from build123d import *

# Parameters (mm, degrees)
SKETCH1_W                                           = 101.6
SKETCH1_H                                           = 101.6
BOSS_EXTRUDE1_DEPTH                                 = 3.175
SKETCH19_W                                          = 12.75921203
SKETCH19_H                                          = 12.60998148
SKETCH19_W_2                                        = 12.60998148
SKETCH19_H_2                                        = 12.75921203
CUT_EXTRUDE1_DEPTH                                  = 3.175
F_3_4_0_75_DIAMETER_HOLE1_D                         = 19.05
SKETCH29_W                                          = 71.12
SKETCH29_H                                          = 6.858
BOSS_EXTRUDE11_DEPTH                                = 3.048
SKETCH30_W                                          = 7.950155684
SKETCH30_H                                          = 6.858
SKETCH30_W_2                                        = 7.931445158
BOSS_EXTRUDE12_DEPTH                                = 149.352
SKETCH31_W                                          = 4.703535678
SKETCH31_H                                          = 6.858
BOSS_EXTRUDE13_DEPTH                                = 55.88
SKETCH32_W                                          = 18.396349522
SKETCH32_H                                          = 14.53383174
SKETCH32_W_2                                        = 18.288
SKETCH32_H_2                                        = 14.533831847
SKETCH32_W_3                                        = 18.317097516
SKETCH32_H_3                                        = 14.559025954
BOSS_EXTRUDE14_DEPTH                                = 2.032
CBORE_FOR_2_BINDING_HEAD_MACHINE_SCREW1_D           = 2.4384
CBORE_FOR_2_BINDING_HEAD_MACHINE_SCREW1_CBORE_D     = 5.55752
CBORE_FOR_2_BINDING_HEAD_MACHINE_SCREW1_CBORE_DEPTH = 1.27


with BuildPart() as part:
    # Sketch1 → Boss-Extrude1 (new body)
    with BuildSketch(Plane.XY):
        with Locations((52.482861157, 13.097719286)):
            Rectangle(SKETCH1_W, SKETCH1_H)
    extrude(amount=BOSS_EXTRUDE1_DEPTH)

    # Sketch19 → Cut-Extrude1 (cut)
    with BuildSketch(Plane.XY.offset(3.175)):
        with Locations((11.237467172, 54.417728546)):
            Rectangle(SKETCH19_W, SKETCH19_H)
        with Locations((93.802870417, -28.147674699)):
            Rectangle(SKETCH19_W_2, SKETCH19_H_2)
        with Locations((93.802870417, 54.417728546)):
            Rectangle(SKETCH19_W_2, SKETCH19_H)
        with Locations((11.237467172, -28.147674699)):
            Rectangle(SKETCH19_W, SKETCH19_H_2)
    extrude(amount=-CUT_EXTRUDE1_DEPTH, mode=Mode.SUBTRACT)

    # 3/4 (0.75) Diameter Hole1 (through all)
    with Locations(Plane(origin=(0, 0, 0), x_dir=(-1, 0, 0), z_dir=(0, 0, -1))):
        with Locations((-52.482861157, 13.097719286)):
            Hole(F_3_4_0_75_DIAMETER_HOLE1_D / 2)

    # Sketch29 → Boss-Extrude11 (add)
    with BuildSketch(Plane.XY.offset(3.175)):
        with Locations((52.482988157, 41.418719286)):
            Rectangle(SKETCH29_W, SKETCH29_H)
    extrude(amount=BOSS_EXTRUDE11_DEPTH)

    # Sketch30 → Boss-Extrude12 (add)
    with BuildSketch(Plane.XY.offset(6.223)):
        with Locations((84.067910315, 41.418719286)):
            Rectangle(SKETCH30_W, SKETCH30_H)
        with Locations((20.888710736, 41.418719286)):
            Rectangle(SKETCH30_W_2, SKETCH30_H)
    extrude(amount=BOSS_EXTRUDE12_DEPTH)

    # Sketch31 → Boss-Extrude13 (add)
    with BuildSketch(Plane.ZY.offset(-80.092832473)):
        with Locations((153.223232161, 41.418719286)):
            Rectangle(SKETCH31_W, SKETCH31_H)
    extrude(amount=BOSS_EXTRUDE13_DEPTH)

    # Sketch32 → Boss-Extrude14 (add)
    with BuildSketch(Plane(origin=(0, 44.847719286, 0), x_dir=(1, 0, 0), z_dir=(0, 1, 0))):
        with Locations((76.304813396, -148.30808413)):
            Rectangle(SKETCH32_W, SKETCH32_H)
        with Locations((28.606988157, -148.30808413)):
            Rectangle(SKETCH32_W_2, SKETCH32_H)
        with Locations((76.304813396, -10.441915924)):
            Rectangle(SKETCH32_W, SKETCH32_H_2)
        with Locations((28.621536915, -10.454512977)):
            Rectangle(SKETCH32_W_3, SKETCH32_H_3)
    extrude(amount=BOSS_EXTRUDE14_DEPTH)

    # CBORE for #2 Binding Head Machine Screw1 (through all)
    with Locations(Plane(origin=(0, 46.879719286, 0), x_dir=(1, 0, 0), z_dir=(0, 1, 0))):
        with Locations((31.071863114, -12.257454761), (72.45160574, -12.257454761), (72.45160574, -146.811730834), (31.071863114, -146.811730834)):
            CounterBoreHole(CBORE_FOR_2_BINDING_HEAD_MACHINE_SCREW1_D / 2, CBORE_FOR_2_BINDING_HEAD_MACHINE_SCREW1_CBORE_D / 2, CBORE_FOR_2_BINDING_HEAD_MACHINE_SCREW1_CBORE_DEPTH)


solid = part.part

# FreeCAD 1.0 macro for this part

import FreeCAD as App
import Part
import Sketcher
Q = App.Units.Quantity

doc = App.newDocument("Part")
body = doc.addObject("PartDesign::Body", "Body")

sketch1 = body.newObject("Sketcher::SketchObject", "Sketch")
sketch1.AttachmentSupport = (doc.getObject("XY_Plane"), [""])
sketch1.MapMode = "FlatFace"
sketch1.addGeometry(Part.LineSegment(App.Vector(2, 64, 0), App.Vector(2, -38, 0)), False)
sketch1.addGeometry(Part.LineSegment(App.Vector(2, -38, 0), App.Vector(103, -38, 0)), False)
sketch1.addGeometry(Part.LineSegment(App.Vector(103, -38, 0), App.Vector(103, 64, 0)), False)
sketch1.addGeometry(Part.LineSegment(App.Vector(103, 64, 0), App.Vector(2, 64, 0)), False)
sketch1.addConstraint(Sketcher.Constraint("Coincident", 0, 2, 1, 1))
sketch1.addConstraint(Sketcher.Constraint("Coincident", 1, 2, 2, 1))
sketch1.addConstraint(Sketcher.Constraint("Coincident", 2, 2, 3, 1))
sketch1.addConstraint(Sketcher.Constraint("Coincident", 3, 2, 0, 1))
sketch1.addConstraint(Sketcher.Constraint("Vertical", 0))
sketch1.addConstraint(Sketcher.Constraint("Horizontal", 1))
sketch1.addConstraint(Sketcher.Constraint("Vertical", 2))
sketch1.addConstraint(Sketcher.Constraint("Horizontal", 3))
sketch1.addConstraint(Sketcher.Constraint("Equal", 3, 0))
sketch1.addConstraint(Sketcher.Constraint("DistanceX", 1, 1, 1, 2, Q("4 in")))
sketch1.addConstraint(Sketcher.Constraint("DistanceX", -1, 1, 0, 2, Q("1.682861 mm")))
sketch1.addConstraint(Sketcher.Constraint("DistanceY", 0, 2, -1, 1, Q("37.702281 mm")))
pad1 = body.newObject("PartDesign::Pad", "Pad")
pad1.Profile = sketch1
pad1.Length = Q("0.125 in")

sketch2 = body.newObject("Sketcher::SketchObject", "Sketch001")
sketch2.AttachmentSupport = (doc.getObject("XY_Plane"), [""])
sketch2.MapMode = "FlatFace"
sketch2.AttachmentOffset = App.Placement(App.Vector(0, 0, 0.125 * 25.4), App.Rotation())
sketch2.addGeometry(Part.LineSegment(App.Vector(5, 61, 0), App.Vector(5, 48, 0)), False)
sketch2.addGeometry(Part.LineSegment(App.Vector(5, 48, 0), App.Vector(18, 48, 0)), False)
sketch2.addGeometry(Part.LineSegment(App.Vector(18, 48, 0), App.Vector(18, 61, 0)), False)
sketch2.addGeometry(Part.LineSegment(App.Vector(18, 61, 0), App.Vector(5, 61, 0)), False)
sketch2.addGeometry(Part.LineSegment(App.Vector(87, -22, 0), App.Vector(87, -35, 0)), False)
sketch2.addGeometry(Part.LineSegment(App.Vector(87, -35, 0), App.Vector(100, -35, 0)), False)
sketch2.addGeometry(Part.LineSegment(App.Vector(100, -35, 0), App.Vector(100, -22, 0)), False)
sketch2.addGeometry(Part.LineSegment(App.Vector(100, -22, 0), App.Vector(87, -22, 0)), False)
sketch2.addGeometry(Part.LineSegment(App.Vector(87, 61, 0), App.Vector(87, 48, 0)), False)
sketch2.addGeometry(Part.LineSegment(App.Vector(87, 48, 0), App.Vector(100, 48, 0)), False)
sketch2.addGeometry(Part.LineSegment(App.Vector(100, 48, 0), App.Vector(100, 61, 0)), False)
sketch2.addGeometry(Part.LineSegment(App.Vector(100, 61, 0), App.Vector(87, 61, 0)), False)
sketch2.addGeometry(Part.LineSegment(App.Vector(5, -22, 0), App.Vector(5, -35, 0)), False)
sketch2.addGeometry(Part.LineSegment(App.Vector(5, -35, 0), App.Vector(18, -35, 0)), False)
sketch2.addGeometry(Part.LineSegment(App.Vector(18, -35, 0), App.Vector(18, -22, 0)), False)
sketch2.addGeometry(Part.LineSegment(App.Vector(18, -22, 0), App.Vector(5, -22, 0)), False)
sketch2.addConstraint(Sketcher.Constraint("Coincident", 0, 2, 1, 1))
sketch2.addConstraint(Sketcher.Constraint("Coincident", 1, 2, 2, 1))
sketch2.addConstraint(Sketcher.Constraint("Coincident", 2, 2, 3, 1))
sketch2.addConstraint(Sketcher.Constraint("Coincident", 3, 2, 0, 1))
sketch2.addConstraint(Sketcher.Constraint("Coincident", 4, 2, 5, 1))
sketch2.addConstraint(Sketcher.Constraint("Coincident", 5, 2, 6, 1))
sketch2.addConstraint(Sketcher.Constraint("Coincident", 6, 2, 7, 1))
sketch2.addConstraint(Sketcher.Constraint("Coincident", 7, 2, 4, 1))
sketch2.addConstraint(Sketcher.Constraint("Coincident", 8, 2, 9, 1))
sketch2.addConstraint(Sketcher.Constraint("Coincident", 9, 2, 10, 1))
sketch2.addConstraint(Sketcher.Constraint("Coincident", 10, 2, 11, 1))
sketch2.addConstraint(Sketcher.Constraint("Coincident", 11, 2, 8, 1))
sketch2.addConstraint(Sketcher.Constraint("Coincident", 12, 2, 13, 1))
sketch2.addConstraint(Sketcher.Constraint("Coincident", 13, 2, 14, 1))
sketch2.addConstraint(Sketcher.Constraint("Coincident", 14, 2, 15, 1))
sketch2.addConstraint(Sketcher.Constraint("Coincident", 15, 2, 12, 1))
sketch2.addConstraint(Sketcher.Constraint("Vertical", 0))
sketch2.addConstraint(Sketcher.Constraint("Horizontal", 1))
sketch2.addConstraint(Sketcher.Constraint("Vertical", 2))
sketch2.addConstraint(Sketcher.Constraint("Horizontal", 3))
sketch2.addConstraint(Sketcher.Constraint("Vertical", 4))
sketch2.addConstraint(Sketcher.Constraint("Horizontal", 5))
sketch2.addConstraint(Sketcher.Constraint("Vertical", 6))
sketch2.addConstraint(Sketcher.Constraint("Horizontal", 7))
sketch2.addConstraint(Sketcher.Constraint("Vertical", 8))
sketch2.addConstraint(Sketcher.Constraint("Horizontal", 9))
sketch2.addConstraint(Sketcher.Constraint("Vertical", 10))
sketch2.addConstraint(Sketcher.Constraint("Horizontal", 11))
sketch2.addConstraint(Sketcher.Constraint("Vertical", 12))
sketch2.addConstraint(Sketcher.Constraint("Horizontal", 13))
sketch2.addConstraint(Sketcher.Constraint("Vertical", 14))
sketch2.addConstraint(Sketcher.Constraint("Horizontal", 15))
sketch2.addConstraint(Sketcher.Constraint("Horizontal", 1, 2, 8, 2))
sketch2.addConstraint(Sketcher.Constraint("Horizontal", 3, 2, 10, 2))
sketch2.addConstraint(Sketcher.Constraint("Horizontal", 5, 2, 12, 2))
sketch2.addConstraint(Sketcher.Constraint("Horizontal", 7, 2, 14, 2))
sketch2.addConstraint(Sketcher.Constraint("Vertical", 7, 2, 8, 2))
sketch2.addConstraint(Sketcher.Constraint("Vertical", 6, 2, 9, 2))
sketch2.addConstraint(Sketcher.Constraint("Vertical", 3, 2, 12, 2))
sketch2.addConstraint(Sketcher.Constraint("Vertical", 2, 2, 13, 2))
sketch2.addConstraint(Sketcher.Constraint("Equal", 11, 0))
sketch2.addConstraint(Sketcher.Constraint("Equal", 15, 4))
sketch2.addConstraint(Sketcher.Constraint("DistanceY", 4, 2, 2, 2, Q("3.75 in")))
sketch2.addConstraint(Sketcher.Constraint("DistanceX", 0, 2, 5, 2, Q("3.75 in")))
sketch2.addConstraint(Sketcher.Constraint("DistanceX", 5, 1, 5, 2, Q("12.609981 mm")))
sketch2.addConstraint(Sketcher.Constraint("DistanceX", 1, 1, 1, 2, Q("12.759212 mm")))
sketch2.addConstraint(Sketcher.Constraint("DistanceX", -1, 1, 0, 2, Q("4.857861 mm")))
sketch2.addConstraint(Sketcher.Constraint("DistanceY", -1, 1, 2, 2, Q("60.722719 mm")))
pocket1 = body.newObject("PartDesign::Pocket", "Pocket")
pocket1.Profile = sketch2
pocket1.Length = Q("0.125 in")

sketch3 = body.newObject("Sketcher::SketchObject", "Sketch002")
sketch3.AttachmentSupport = (doc.getObject("XY_Plane"), [""])
sketch3.MapMode = "FlatFace"
sketch3.addGeometry(Part.Circle(App.Vector(52, 13, 0), App.Vector(0, 0, 1), 10), False)
sketch3.addConstraint(Sketcher.Constraint("Diameter", 0, Q("0.75 in")))
sketch3.addConstraint(Sketcher.Constraint("DistanceX", -1, 1, 0, 3, Q("52.482861 mm")))
sketch3.addConstraint(Sketcher.Constraint("DistanceY", -1, 1, 0, 3, Q("13.097719 mm")))
doc.recompute()
hole = body.newObject("PartDesign::Hole", "Hole")
hole.Profile = sketch3
hole.ThreadType = "None"
hole.Diameter = Q("0.75 in")
hole.DepthType = "ThroughAll"
hole.Reversed = True

sketch4 = body.newObject("Sketcher::SketchObject", "Sketch003")
sketch4.AttachmentSupport = (doc.getObject("XY_Plane"), [""])
sketch4.MapMode = "FlatFace"
sketch4.AttachmentOffset = App.Placement(App.Vector(0, 0, 0.125 * 25.4), App.Rotation())
sketch4.addGeometry(Part.LineSegment(App.Vector(17, 45, 0), App.Vector(17, 38, 0)), False)
sketch4.addGeometry(Part.LineSegment(App.Vector(17, 38, 0), App.Vector(88, 38, 0)), False)
sketch4.addGeometry(Part.LineSegment(App.Vector(88, 38, 0), App.Vector(88, 45, 0)), False)
sketch4.addGeometry(Part.LineSegment(App.Vector(88, 45, 0), App.Vector(17, 45, 0)), False)
sketch4.addConstraint(Sketcher.Constraint("Coincident", 0, 2, 1, 1))
sketch4.addConstraint(Sketcher.Constraint("Coincident", 1, 2, 2, 1))
sketch4.addConstraint(Sketcher.Constraint("Coincident", 2, 2, 3, 1))
sketch4.addConstraint(Sketcher.Constraint("Coincident", 3, 2, 0, 1))
sketch4.addConstraint(Sketcher.Constraint("Vertical", 0))
sketch4.addConstraint(Sketcher.Constraint("Horizontal", 1))
sketch4.addConstraint(Sketcher.Constraint("Vertical", 2))
sketch4.addConstraint(Sketcher.Constraint("Horizontal", 3))
sketch4.addConstraint(Sketcher.Constraint("DistanceX", 1, 1, 1, 2, Q("2.8 in")))
sketch4.addConstraint(Sketcher.Constraint("DistanceY", 0, 2, 0, 1, Q("0.27 in")))
sketch4.addConstraint(Sketcher.Constraint("DistanceX", -1, 1, 0, 2, Q("16.922988 mm")))
sketch4.addConstraint(Sketcher.Constraint("DistanceY", -1, 1, 0, 2, Q("37.989719 mm")))
pad2 = body.newObject("PartDesign::Pad", "Pad001")
pad2.Profile = sketch4
pad2.Length = Q("0.12 in")

sketch5 = body.newObject("Sketcher::SketchObject", "Sketch004")
sketch5.AttachmentSupport = (doc.getObject("XY_Plane"), [""])
sketch5.MapMode = "FlatFace"
sketch5.AttachmentOffset = App.Placement(App.Vector(0, 0, 0.245 * 25.4), App.Rotation())
sketch5.addGeometry(Part.LineSegment(App.Vector(80, 45, 0), App.Vector(80, 38, 0)), False)
sketch5.addGeometry(Part.LineSegment(App.Vector(80, 38, 0), App.Vector(88, 38, 0)), False)
sketch5.addGeometry(Part.LineSegment(App.Vector(88, 38, 0), App.Vector(88, 45, 0)), False)
sketch5.addGeometry(Part.LineSegment(App.Vector(88, 45, 0), App.Vector(80, 45, 0)), False)
sketch5.addGeometry(Part.LineSegment(App.Vector(17, 45, 0), App.Vector(17, 38, 0)), False)
sketch5.addGeometry(Part.LineSegment(App.Vector(17, 38, 0), App.Vector(25, 38, 0)), False)
sketch5.addGeometry(Part.LineSegment(App.Vector(25, 38, 0), App.Vector(25, 45, 0)), False)
sketch5.addGeometry(Part.LineSegment(App.Vector(25, 45, 0), App.Vector(17, 45, 0)), False)
sketch5.addConstraint(Sketcher.Constraint("Coincident", 0, 2, 1, 1))
sketch5.addConstraint(Sketcher.Constraint("Coincident", 1, 2, 2, 1))
sketch5.addConstraint(Sketcher.Constraint("Coincident", 2, 2, 3, 1))
sketch5.addConstraint(Sketcher.Constraint("Coincident", 3, 2, 0, 1))
sketch5.addConstraint(Sketcher.Constraint("Coincident", 4, 2, 5, 1))
sketch5.addConstraint(Sketcher.Constraint("Coincident", 5, 2, 6, 1))
sketch5.addConstraint(Sketcher.Constraint("Coincident", 6, 2, 7, 1))
sketch5.addConstraint(Sketcher.Constraint("Coincident", 7, 2, 4, 1))
sketch5.addConstraint(Sketcher.Constraint("Vertical", 0))
sketch5.addConstraint(Sketcher.Constraint("Horizontal", 1))
sketch5.addConstraint(Sketcher.Constraint("Vertical", 2))
sketch5.addConstraint(Sketcher.Constraint("Horizontal", 3))
sketch5.addConstraint(Sketcher.Constraint("Vertical", 4))
sketch5.addConstraint(Sketcher.Constraint("Horizontal", 5))
sketch5.addConstraint(Sketcher.Constraint("Vertical", 6))
sketch5.addConstraint(Sketcher.Constraint("Horizontal", 7))
sketch5.addConstraint(Sketcher.Constraint("Horizontal", 1, 2, 4, 2))
sketch5.addConstraint(Sketcher.Constraint("Horizontal", 3, 2, 6, 2))
sketch5.addConstraint(Sketcher.Constraint("DistanceY", 0, 2, 0, 1, Q("0.27 in")))
sketch5.addConstraint(Sketcher.Constraint("DistanceX", 4, 2, 1, 2, Q("2.8 in")))
sketch5.addConstraint(Sketcher.Constraint("DistanceX", 5, 2, 0, 2, Q("55.238399 mm")))
sketch5.addConstraint(Sketcher.Constraint("DistanceX", 1, 1, 1, 2, Q("7.950156 mm")))
sketch5.addConstraint(Sketcher.Constraint("DistanceY", -1, 1, 0, 2, Q("37.989719 mm")))
sketch5.addConstraint(Sketcher.Constraint("DistanceX", -1, 1, 1, 2, Q("88.042988 mm")))
pad3 = body.newObject("PartDesign::Pad", "Pad002")
pad3.Profile = sketch5
pad3.Length = Q("5.88 in")

sketch6 = body.newObject("Sketcher::SketchObject", "Sketch005")
sketch6.AttachmentSupport = (doc.getObject("YZ_Plane"), [""])
sketch6.MapMode = "FlatFace"
sketch6.AttachmentOffset = App.Placement(App.Vector(0, 0, 80.092832), App.Rotation())
sketch6.addGeometry(Part.LineSegment(App.Vector(44.8, 150.9, 0), App.Vector(38, 150.9, 0)), False)
sketch6.addGeometry(Part.LineSegment(App.Vector(38, 150.9, 0), App.Vector(38, 155.6, 0)), False)
sketch6.addGeometry(Part.LineSegment(App.Vector(38, 155.6, 0), App.Vector(44.8, 155.6, 0)), False)
sketch6.addGeometry(Part.LineSegment(App.Vector(44.8, 155.6, 0), App.Vector(44.8, 150.9, 0)), False)
sketch6.addConstraint(Sketcher.Constraint("Coincident", 0, 2, 1, 1))
sketch6.addConstraint(Sketcher.Constraint("Coincident", 1, 2, 2, 1))
sketch6.addConstraint(Sketcher.Constraint("Coincident", 2, 2, 3, 1))
sketch6.addConstraint(Sketcher.Constraint("Coincident", 3, 2, 0, 1))
sketch6.addConstraint(Sketcher.Constraint("Horizontal", 0))
sketch6.addConstraint(Sketcher.Constraint("Vertical", 1))
sketch6.addConstraint(Sketcher.Constraint("Horizontal", 2))
sketch6.addConstraint(Sketcher.Constraint("Vertical", 3))
sketch6.addConstraint(Sketcher.Constraint("DistanceX", 0, 2, 0, 1, Q("0.27 in")))
sketch6.addConstraint(Sketcher.Constraint("DistanceY", -1, 1, 1, 2, Q("6.125 in")))
sketch6.addConstraint(Sketcher.Constraint("DistanceY", 1, 1, 1, 2, Q("4.703536 mm")))
sketch6.addConstraint(Sketcher.Constraint("DistanceX", -1, 1, 0, 2, Q("37.989719 mm")))
pad4 = body.newObject("PartDesign::Pad", "Pad003")
pad4.Profile = sketch6
pad4.Length = Q("2.2 in")
pad4.Reversed = True

sketch7 = body.newObject("Sketcher::SketchObject", "Sketch006")
sketch7.AttachmentSupport = (doc.getObject("XZ_Plane"), [""])
sketch7.MapMode = "FlatFace"
sketch7.AttachmentOffset = App.Placement(App.Vector(0, 0, -44.847719), App.Rotation())
sketch7.addGeometry(Part.LineSegment(App.Vector(67, 141, 0), App.Vector(67, 156, 0)), False)
sketch7.addGeometry(Part.LineSegment(App.Vector(67, 156, 0), App.Vector(86, 156, 0)), False)
sketch7.addGeometry(Part.LineSegment(App.Vector(86, 156, 0), App.Vector(86, 141, 0)), False)
sketch7.addGeometry(Part.LineSegment(App.Vector(86, 141, 0), App.Vector(67, 141, 0)), False)
sketch7.addGeometry(Part.LineSegment(App.Vector(19, 141, 0), App.Vector(19, 156, 0)), False)
sketch7.addGeometry(Part.LineSegment(App.Vector(19, 156, 0), App.Vector(38, 156, 0)), False)
sketch7.addGeometry(Part.LineSegment(App.Vector(38, 156, 0), App.Vector(38, 141, 0)), False)
sketch7.addGeometry(Part.LineSegment(App.Vector(38, 141, 0), App.Vector(19, 141, 0)), False)
sketch7.addGeometry(Part.LineSegment(App.Vector(67, 3, 0), App.Vector(67, 18, 0)), False)
sketch7.addGeometry(Part.LineSegment(App.Vector(67, 18, 0), App.Vector(86, 18, 0)), False)
sketch7.addGeometry(Part.LineSegment(App.Vector(86, 18, 0), App.Vector(86, 3, 0)), False)
sketch7.addGeometry(Part.LineSegment(App.Vector(86, 3, 0), App.Vector(67, 3, 0)), False)
sketch7.addGeometry(Part.LineSegment(App.Vector(19, 3, 0), App.Vector(19, 18, 0)), False)
sketch7.addGeometry(Part.LineSegment(App.Vector(19, 18, 0), App.Vector(38, 18, 0)), False)
sketch7.addGeometry(Part.LineSegment(App.Vector(38, 18, 0), App.Vector(38, 3, 0)), False)
sketch7.addGeometry(Part.LineSegment(App.Vector(38, 3, 0), App.Vector(19, 3, 0)), False)
sketch7.addConstraint(Sketcher.Constraint("Coincident", 0, 2, 1, 1))
sketch7.addConstraint(Sketcher.Constraint("Coincident", 1, 2, 2, 1))
sketch7.addConstraint(Sketcher.Constraint("Coincident", 2, 2, 3, 1))
sketch7.addConstraint(Sketcher.Constraint("Coincident", 3, 2, 0, 1))
sketch7.addConstraint(Sketcher.Constraint("Coincident", 4, 2, 5, 1))
sketch7.addConstraint(Sketcher.Constraint("Coincident", 5, 2, 6, 1))
sketch7.addConstraint(Sketcher.Constraint("Coincident", 6, 2, 7, 1))
sketch7.addConstraint(Sketcher.Constraint("Coincident", 7, 2, 4, 1))
sketch7.addConstraint(Sketcher.Constraint("Coincident", 8, 2, 9, 1))
sketch7.addConstraint(Sketcher.Constraint("Coincident", 9, 2, 10, 1))
sketch7.addConstraint(Sketcher.Constraint("Coincident", 10, 2, 11, 1))
sketch7.addConstraint(Sketcher.Constraint("Coincident", 11, 2, 8, 1))
sketch7.addConstraint(Sketcher.Constraint("Coincident", 12, 2, 13, 1))
sketch7.addConstraint(Sketcher.Constraint("Coincident", 13, 2, 14, 1))
sketch7.addConstraint(Sketcher.Constraint("Coincident", 14, 2, 15, 1))
sketch7.addConstraint(Sketcher.Constraint("Coincident", 15, 2, 12, 1))
sketch7.addConstraint(Sketcher.Constraint("Vertical", 0))
sketch7.addConstraint(Sketcher.Constraint("Horizontal", 1))
sketch7.addConstraint(Sketcher.Constraint("Vertical", 2))
sketch7.addConstraint(Sketcher.Constraint("Horizontal", 3))
sketch7.addConstraint(Sketcher.Constraint("Vertical", 4))
sketch7.addConstraint(Sketcher.Constraint("Horizontal", 5))
sketch7.addConstraint(Sketcher.Constraint("Vertical", 6))
sketch7.addConstraint(Sketcher.Constraint("Horizontal", 7))
sketch7.addConstraint(Sketcher.Constraint("Vertical", 8))
sketch7.addConstraint(Sketcher.Constraint("Horizontal", 9))
sketch7.addConstraint(Sketcher.Constraint("Vertical", 10))
sketch7.addConstraint(Sketcher.Constraint("Horizontal", 11))
sketch7.addConstraint(Sketcher.Constraint("Vertical", 12))
sketch7.addConstraint(Sketcher.Constraint("Horizontal", 13))
sketch7.addConstraint(Sketcher.Constraint("Vertical", 14))
sketch7.addConstraint(Sketcher.Constraint("Horizontal", 15))
sketch7.addConstraint(Sketcher.Constraint("Horizontal", 1, 2, 4, 2))
sketch7.addConstraint(Sketcher.Constraint("Horizontal", 3, 2, 6, 2))
sketch7.addConstraint(Sketcher.Constraint("Horizontal", 11, 2, 14, 2))
sketch7.addConstraint(Sketcher.Constraint("Vertical", 3, 2, 8, 2))
sketch7.addConstraint(Sketcher.Constraint("Vertical", 2, 2, 9, 2))
sketch7.addConstraint(Sketcher.Constraint("Vertical", 7, 2, 12, 2))
sketch7.addConstraint(Sketcher.Constraint("Equal", 6, 8))
sketch7.addConstraint(Sketcher.Constraint("DistanceX", 5, 1, 5, 2, Q("0.72 in")))
sketch7.addConstraint(Sketcher.Constraint("DistanceX", 4, 2, 1, 2, Q("2.6 in")))
sketch7.addConstraint(Sketcher.Constraint("DistanceY", -1, 1, 0, 2, Q("6.125 in")))
sketch7.addConstraint(Sketcher.Constraint("DistanceY", -1, 1, 10, 2, Q("0.125 in")))
sketch7.addConstraint(Sketcher.Constraint("DistanceX", 1, 1, 1, 2, Q("18.39635 mm")))
sketch7.addConstraint(Sketcher.Constraint("DistanceY", 0, 1, 0, 2, Q("14.533832 mm")))
sketch7.addConstraint(Sketcher.Constraint("DistanceX", 13, 1, 13, 2, Q("18.317098 mm")))
sketch7.addConstraint(Sketcher.Constraint("DistanceY", 12, 1, 12, 2, Q("14.559026 mm")))
sketch7.addConstraint(Sketcher.Constraint("DistanceX", -1, 1, 0, 2, Q("67.106639 mm")))
pad5 = body.newObject("PartDesign::Pad", "Pad004")
pad5.Profile = sketch7
pad5.Length = Q("0.08 in")
pad5.Reversed = True

sketch8 = body.newObject("Sketcher::SketchObject", "Sketch007")
sketch8.AttachmentSupport = (doc.getObject("XZ_Plane"), [""])
sketch8.MapMode = "FlatFace"
sketch8.AttachmentOffset = App.Placement(App.Vector(0, 0, -46.879719), App.Rotation())
sketch8.addGeometry(Part.Circle(App.Vector(31.1, 12.3, 0), App.Vector(0, 0, 1), 1.2), False)
sketch8.addGeometry(Part.Circle(App.Vector(72.5, 12.3, 0), App.Vector(0, 0, 1), 1.2), False)
sketch8.addGeometry(Part.Circle(App.Vector(72.5, 146.8, 0), App.Vector(0, 0, 1), 1.2), False)
sketch8.addGeometry(Part.Circle(App.Vector(31.1, 146.8, 0), App.Vector(0, 0, 1), 1.2), False)
sketch8.addConstraint(Sketcher.Constraint("Equal", 0, 1))
sketch8.addConstraint(Sketcher.Constraint("Equal", 1, 2))
sketch8.addConstraint(Sketcher.Constraint("Equal", 2, 3))
sketch8.addConstraint(Sketcher.Constraint("Horizontal", 0, 3, 1, 3))
sketch8.addConstraint(Sketcher.Constraint("Horizontal", 2, 3, 3, 3))
sketch8.addConstraint(Sketcher.Constraint("Vertical", 1, 3, 2, 3))
sketch8.addConstraint(Sketcher.Constraint("Vertical", 0, 3, 3, 3))
sketch8.addConstraint(Sketcher.Constraint("Diameter", 0, Q("0.096 in")))
sketch8.addConstraint(Sketcher.Constraint("DistanceY", -1, 1, 2, 3, Q("146.811731 mm")))
sketch8.addConstraint(Sketcher.Constraint("DistanceX", -1, 1, 0, 3, Q("31.071863 mm")))
sketch8.addConstraint(Sketcher.Constraint("DistanceY", -1, 1, 0, 3, Q("12.257455 mm")))
sketch8.addConstraint(Sketcher.Constraint("DistanceX", -1, 1, 1, 3, Q("72.451606 mm")))
doc.recompute()
hole2 = body.newObject("PartDesign::Hole", "Hole001")
hole2.Profile = sketch8
hole2.ThreadType = "None"
hole2.Diameter = Q("0.096 in")
hole2.DepthType = "ThroughAll"
hole2.HoleCutType = "Counterbore"
hole2.HoleCutDiameter = Q("0.2188 in")
hole2.HoleCutDepth = Q("0.05 in")
hole2.Reversed = True

doc.recompute()
